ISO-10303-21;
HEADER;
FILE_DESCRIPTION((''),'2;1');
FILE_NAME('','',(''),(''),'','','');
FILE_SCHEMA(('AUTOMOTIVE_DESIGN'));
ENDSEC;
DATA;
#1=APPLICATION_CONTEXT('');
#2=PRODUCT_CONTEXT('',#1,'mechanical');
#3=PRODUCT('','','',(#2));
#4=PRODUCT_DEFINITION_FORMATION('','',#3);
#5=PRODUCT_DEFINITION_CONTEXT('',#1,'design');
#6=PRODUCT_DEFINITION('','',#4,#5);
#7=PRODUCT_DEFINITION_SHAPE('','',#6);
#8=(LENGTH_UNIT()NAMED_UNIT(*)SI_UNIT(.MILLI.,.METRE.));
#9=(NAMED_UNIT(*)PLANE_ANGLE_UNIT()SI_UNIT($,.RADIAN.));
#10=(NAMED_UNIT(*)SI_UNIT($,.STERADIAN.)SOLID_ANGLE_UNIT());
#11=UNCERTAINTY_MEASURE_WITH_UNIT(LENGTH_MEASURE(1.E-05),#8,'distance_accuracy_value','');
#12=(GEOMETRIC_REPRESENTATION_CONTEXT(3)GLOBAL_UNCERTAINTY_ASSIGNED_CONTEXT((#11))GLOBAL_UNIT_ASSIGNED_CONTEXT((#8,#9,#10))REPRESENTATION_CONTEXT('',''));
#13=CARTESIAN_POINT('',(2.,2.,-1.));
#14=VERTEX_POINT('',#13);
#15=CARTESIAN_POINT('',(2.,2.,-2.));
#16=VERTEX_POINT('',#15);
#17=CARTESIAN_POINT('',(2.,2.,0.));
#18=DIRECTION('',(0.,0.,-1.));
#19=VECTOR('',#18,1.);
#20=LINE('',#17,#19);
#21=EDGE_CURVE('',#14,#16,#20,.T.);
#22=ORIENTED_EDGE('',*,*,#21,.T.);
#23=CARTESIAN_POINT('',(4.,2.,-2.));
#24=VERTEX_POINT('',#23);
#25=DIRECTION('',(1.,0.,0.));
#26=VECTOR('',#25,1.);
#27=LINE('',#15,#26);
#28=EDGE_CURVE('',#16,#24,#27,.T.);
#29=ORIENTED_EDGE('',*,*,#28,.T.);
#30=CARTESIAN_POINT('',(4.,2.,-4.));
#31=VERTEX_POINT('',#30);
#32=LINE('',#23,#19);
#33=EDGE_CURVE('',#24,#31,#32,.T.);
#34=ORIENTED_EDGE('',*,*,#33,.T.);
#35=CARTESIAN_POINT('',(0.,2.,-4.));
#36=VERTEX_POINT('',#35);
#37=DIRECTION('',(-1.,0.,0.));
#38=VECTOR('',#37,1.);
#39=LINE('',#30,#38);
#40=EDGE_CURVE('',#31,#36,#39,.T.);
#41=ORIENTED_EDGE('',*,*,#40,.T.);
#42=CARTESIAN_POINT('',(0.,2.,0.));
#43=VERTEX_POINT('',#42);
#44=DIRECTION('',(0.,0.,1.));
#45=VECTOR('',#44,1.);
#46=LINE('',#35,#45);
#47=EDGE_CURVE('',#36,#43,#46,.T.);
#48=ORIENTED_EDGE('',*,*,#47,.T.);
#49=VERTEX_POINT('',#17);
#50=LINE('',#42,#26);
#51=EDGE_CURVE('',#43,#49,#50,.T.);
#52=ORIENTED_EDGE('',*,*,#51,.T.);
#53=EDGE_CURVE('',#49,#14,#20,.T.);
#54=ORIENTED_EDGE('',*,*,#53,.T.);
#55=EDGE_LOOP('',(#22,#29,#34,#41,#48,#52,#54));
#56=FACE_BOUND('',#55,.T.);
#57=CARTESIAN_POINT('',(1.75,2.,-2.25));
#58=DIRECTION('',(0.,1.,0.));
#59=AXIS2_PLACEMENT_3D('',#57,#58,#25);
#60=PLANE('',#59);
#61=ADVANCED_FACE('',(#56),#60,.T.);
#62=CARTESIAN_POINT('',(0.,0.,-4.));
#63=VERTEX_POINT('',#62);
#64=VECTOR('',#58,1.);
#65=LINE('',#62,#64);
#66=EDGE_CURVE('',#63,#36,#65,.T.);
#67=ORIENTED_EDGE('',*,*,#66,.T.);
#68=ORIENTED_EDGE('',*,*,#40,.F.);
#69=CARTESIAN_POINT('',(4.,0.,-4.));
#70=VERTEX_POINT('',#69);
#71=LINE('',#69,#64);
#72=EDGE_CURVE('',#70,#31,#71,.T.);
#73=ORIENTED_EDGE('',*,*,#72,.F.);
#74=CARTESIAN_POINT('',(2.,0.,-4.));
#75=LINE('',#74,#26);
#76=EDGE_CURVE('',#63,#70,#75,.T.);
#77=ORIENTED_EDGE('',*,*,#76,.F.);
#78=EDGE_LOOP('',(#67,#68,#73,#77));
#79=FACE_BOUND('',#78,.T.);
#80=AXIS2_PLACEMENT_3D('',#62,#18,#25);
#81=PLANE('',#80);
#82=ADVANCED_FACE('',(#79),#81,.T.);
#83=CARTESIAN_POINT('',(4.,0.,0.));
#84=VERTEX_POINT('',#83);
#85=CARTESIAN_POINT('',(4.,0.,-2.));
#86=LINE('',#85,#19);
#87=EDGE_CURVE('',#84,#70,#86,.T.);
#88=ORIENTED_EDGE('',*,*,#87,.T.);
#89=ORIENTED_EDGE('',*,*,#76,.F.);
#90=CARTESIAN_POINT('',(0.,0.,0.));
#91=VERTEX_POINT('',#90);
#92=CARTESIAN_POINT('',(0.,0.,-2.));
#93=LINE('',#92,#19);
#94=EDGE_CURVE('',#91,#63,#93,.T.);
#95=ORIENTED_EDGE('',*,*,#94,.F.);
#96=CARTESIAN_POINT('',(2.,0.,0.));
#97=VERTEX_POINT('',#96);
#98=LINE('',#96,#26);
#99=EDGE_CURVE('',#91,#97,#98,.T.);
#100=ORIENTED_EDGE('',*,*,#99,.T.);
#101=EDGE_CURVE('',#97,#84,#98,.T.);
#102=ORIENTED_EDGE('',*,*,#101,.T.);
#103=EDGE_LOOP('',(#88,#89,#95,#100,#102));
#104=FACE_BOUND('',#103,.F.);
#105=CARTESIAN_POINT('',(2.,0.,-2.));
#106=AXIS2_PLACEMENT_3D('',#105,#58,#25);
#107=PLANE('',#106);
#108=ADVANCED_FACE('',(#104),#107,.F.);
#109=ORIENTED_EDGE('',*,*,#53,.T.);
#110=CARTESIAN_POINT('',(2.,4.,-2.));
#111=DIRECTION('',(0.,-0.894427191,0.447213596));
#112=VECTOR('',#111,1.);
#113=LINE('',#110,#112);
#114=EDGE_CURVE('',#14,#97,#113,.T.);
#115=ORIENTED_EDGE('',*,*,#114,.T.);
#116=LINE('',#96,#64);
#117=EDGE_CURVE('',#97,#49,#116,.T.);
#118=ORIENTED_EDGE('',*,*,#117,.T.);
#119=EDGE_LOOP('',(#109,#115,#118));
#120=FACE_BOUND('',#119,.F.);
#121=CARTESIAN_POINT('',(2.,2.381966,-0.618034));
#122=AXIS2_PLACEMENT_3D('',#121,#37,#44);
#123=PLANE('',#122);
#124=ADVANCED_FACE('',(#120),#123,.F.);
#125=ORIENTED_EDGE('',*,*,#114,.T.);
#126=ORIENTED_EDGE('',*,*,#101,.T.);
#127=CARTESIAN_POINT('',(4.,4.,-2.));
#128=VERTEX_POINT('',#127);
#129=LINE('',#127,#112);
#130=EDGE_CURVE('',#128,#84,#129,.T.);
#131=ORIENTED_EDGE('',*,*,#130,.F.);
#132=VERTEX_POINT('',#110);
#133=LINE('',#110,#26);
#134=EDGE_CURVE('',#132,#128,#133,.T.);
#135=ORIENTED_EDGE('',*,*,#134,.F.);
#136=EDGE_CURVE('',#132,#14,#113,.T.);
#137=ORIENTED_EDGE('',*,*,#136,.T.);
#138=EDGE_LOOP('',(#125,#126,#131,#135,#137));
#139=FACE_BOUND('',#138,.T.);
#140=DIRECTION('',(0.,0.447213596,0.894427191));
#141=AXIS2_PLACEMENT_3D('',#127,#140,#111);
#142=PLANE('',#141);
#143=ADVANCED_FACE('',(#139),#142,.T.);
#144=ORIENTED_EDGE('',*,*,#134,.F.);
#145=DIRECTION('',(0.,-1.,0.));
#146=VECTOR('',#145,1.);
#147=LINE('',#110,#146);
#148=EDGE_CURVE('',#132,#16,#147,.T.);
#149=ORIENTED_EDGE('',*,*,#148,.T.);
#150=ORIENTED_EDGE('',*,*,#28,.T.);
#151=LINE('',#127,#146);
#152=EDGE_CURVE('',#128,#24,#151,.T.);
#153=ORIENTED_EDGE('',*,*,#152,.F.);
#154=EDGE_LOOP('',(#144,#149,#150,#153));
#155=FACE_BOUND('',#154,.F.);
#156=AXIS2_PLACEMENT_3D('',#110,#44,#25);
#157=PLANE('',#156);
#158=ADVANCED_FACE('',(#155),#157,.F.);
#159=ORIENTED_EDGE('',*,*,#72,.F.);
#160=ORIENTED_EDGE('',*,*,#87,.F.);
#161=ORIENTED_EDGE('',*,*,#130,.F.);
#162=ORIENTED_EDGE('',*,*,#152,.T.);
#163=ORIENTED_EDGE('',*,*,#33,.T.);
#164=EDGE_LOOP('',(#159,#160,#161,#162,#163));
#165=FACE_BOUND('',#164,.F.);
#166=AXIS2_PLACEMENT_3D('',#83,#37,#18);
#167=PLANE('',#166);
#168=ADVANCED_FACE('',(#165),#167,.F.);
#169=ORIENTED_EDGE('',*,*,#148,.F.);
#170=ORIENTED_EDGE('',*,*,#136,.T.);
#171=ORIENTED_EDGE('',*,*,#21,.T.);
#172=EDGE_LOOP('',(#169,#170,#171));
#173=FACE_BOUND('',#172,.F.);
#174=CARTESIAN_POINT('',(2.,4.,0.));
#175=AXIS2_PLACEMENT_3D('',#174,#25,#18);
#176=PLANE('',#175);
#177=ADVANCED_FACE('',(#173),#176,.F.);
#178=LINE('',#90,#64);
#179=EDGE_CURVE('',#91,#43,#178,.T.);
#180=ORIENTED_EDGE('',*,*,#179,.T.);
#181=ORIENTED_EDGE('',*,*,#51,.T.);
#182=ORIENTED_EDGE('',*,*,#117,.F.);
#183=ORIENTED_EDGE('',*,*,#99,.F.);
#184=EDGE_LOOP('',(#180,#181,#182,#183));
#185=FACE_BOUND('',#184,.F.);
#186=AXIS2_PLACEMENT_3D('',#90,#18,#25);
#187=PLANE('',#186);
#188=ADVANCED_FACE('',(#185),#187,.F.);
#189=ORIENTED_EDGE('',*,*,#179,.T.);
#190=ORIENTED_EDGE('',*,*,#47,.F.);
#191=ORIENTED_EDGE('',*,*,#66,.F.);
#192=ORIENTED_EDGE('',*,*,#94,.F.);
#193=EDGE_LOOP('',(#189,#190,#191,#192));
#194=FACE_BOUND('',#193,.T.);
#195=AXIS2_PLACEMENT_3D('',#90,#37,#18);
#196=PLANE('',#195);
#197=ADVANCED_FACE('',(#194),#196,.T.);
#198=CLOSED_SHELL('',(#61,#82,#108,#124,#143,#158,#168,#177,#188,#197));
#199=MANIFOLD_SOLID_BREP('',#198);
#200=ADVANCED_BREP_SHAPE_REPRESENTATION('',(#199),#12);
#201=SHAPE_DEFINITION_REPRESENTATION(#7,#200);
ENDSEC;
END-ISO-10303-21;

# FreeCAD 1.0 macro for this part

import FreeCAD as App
import Part
import Sketcher
from FreeCAD import Vector
Q = App.Units.Quantity


def add_polygon(sketch, points):
    """Adds a closed chain of lines whose ends are joined by coincident constraints."""
    first, n = sketch.GeometryCount, len(points)
    for a, b in zip(points, points[1:] + points[:1]):
        sketch.addGeometry(Part.LineSegment(App.Vector(*a, 0), App.Vector(*b, 0)), False)
    for i in range(n):
        sketch.addConstraint(Sketcher.Constraint("Coincident", first + i, 2, first + (i + 1) % n, 1))

doc = App.newDocument("Part")
body = doc.addObject("PartDesign::Body", "Body")

sketch1 = body.newObject("Sketcher::SketchObject", "Sketch")
sketch1.AttachmentSupport = (doc.getObject("XZ_Plane"), [""])
sketch1.MapMode = "FlatFace"
add_polygon(sketch1, [(0, -4), (0, 0), (4, 0), (4, -4)])
sketch1.addConstraint([
    Sketcher.Constraint("Vertical", 0),
    Sketcher.Constraint("Horizontal", 1),
    Sketcher.Constraint("Vertical", 2),
    Sketcher.Constraint("Horizontal", 3),
    Sketcher.Constraint("Coincident", 0, 2, -1, 1),
    Sketcher.Constraint("Equal", 3, 0),
    Sketcher.Constraint("DistanceX", 1, 1, 1, 2, Q("4 mm")),
])
pad1 = body.newObject("PartDesign::Pad", "Pad")
pad1.Profile = sketch1
pad1.Length = 4
pad1.Reversed = True

sketch2 = body.newObject("Sketcher::SketchObject", "Sketch001")
sketch2.AttachmentSupport = (doc.getObject("XZ_Plane"), [""])
sketch2.MapMode = "FlatFace"
sketch2.AttachmentOffset = App.Placement(Vector(0, 0, -4), App.Rotation())
add_polygon(sketch2, [(2, 0), (2, -2), (4, -2), (4, -4), (0, -4), (0, 0)])
sketch2.addConstraint([
    Sketcher.Constraint("Vertical", 0),
    Sketcher.Constraint("Horizontal", 1),
    Sketcher.Constraint("Vertical", 2),
    Sketcher.Constraint("Horizontal", 3),
    Sketcher.Constraint("Vertical", 4),
    Sketcher.Constraint("Horizontal", 5),
    Sketcher.Constraint("Coincident", 4, 2, -1, 1),
    Sketcher.Constraint("Equal", 1, 5),
    Sketcher.Constraint("Equal", 5, 0),
    Sketcher.Constraint("Equal", 0, 2),
    Sketcher.Constraint("DistanceX", 1, 1, 1, 2, Q("2 mm")),
])
pocket1 = body.newObject("PartDesign::Pocket", "Pocket")
pocket1.Profile = sketch2
pocket1.Length = 2
pocket1.Reversed = True

sketch3 = body.newObject("Sketcher::SketchObject", "Sketch002")
sketch3.AttachmentSupport = (doc.getObject("YZ_Plane"), [""])
sketch3.MapMode = "FlatFace"
sketch3.AttachmentOffset = App.Placement(Vector(0, 0, 4), App.Rotation())
add_polygon(sketch3, [(0, 0), (4, -2), (4, 0)])
sketch3.addConstraint([
    Sketcher.Constraint("Vertical", 1),
    Sketcher.Constraint("Horizontal", 2),
    Sketcher.Constraint("Coincident", 2, 2, -1, 1),
    Sketcher.Constraint("DistanceX", 2, 2, 2, 1, Q("4 mm")),
    Sketcher.Constraint("DistanceY", 1, 1, 1, 2, Q("2 mm")),
])
pocket2 = body.newObject("PartDesign::Pocket", "Pocket001")
pocket2.Profile = sketch3
pocket2.Length = 2

doc.recompute()
